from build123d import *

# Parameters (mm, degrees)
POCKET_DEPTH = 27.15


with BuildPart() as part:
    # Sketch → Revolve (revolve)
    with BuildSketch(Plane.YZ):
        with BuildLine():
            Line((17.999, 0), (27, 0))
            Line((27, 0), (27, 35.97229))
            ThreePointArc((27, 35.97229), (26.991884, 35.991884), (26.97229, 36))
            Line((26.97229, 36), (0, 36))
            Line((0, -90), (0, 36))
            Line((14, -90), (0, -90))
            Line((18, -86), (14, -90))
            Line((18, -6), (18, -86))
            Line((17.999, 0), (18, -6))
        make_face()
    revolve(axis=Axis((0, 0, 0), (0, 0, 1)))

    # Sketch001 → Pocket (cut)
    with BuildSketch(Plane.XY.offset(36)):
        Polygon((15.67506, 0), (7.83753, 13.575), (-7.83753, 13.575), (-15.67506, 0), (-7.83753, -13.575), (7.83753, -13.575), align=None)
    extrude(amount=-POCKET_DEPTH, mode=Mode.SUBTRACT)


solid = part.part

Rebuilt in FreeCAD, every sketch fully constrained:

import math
import FreeCAD as App
import Part
import Sketcher
Q = App.Units.Quantity


def add_polygon(sketch, points):
    """Adds a closed chain of lines whose ends are joined by coincident constraints."""
    first, n = sketch.GeometryCount, len(points)
    for a, b in zip(points, points[1:] + points[:1]):
        sketch.addGeometry(Part.LineSegment(App.Vector(*a, 0), App.Vector(*b, 0)), False)
    for i in range(n):
        sketch.addConstraint(Sketcher.Constraint("Coincident", first + i, 2, first + (i + 1) % n, 1))

doc = App.newDocument("Part")
body = doc.addObject("PartDesign::Body", "Body")

sketch1 = body.newObject("Sketcher::SketchObject", "Sketch")
sketch1.AttachmentSupport = (doc.getObject("YZ_Plane"), [""])
sketch1.MapMode = "FlatFace"
sketch1.addGeometry(Part.LineSegment(App.Vector(17.999, 0, 0), App.Vector(27, 0, 0)), False)
sketch1.addGeometry(Part.LineSegment(App.Vector(27, 0, 0), App.Vector(27, 35.97229, 0)), False)
sketch1.addGeometry(Part.ArcOfCircle(Part.Circle(App.Vector(26.97229, 35.97229, 0), App.Vector(0, 0, 1), 0.02771), math.radians(-0.000502), math.radians(90.000502)), False)
sketch1.addGeometry(Part.LineSegment(App.Vector(26.97229, 36, 0), App.Vector(0, 36, 0)), False)
sketch1.addGeometry(Part.LineSegment(App.Vector(0, 36, 0), App.Vector(0, -90, 0)), False)
sketch1.addGeometry(Part.LineSegment(App.Vector(0, -90, 0), App.Vector(14, -90, 0)), False)
sketch1.addGeometry(Part.LineSegment(App.Vector(14, -90, 0), App.Vector(18, -86, 0)), False)
sketch1.addGeometry(Part.LineSegment(App.Vector(18, -86, 0), App.Vector(18, -6, 0)), False)
sketch1.addGeometry(Part.LineSegment(App.Vector(18, -6, 0), App.Vector(17.999, 0, 0)), False)
sketch1.addConstraint(Sketcher.Constraint("Coincident", 0, 2, 1, 1))
sketch1.addConstraint(Sketcher.Constraint("Coincident", 1, 2, 2, 1))
sketch1.addConstraint(Sketcher.Constraint("Coincident", 2, 2, 3, 1))
sketch1.addConstraint(Sketcher.Constraint("Coincident", 3, 2, 4, 1))
sketch1.addConstraint(Sketcher.Constraint("Coincident", 4, 2, 5, 1))
sketch1.addConstraint(Sketcher.Constraint("Coincident", 5, 2, 6, 1))
sketch1.addConstraint(Sketcher.Constraint("Coincident", 6, 2, 7, 1))
sketch1.addConstraint(Sketcher.Constraint("Coincident", 7, 2, 8, 1))
sketch1.addConstraint(Sketcher.Constraint("Coincident", 8, 2, 0, 1))
sketch1.addConstraint(Sketcher.Constraint("Horizontal", 0))
sketch1.addConstraint(Sketcher.Constraint("Vertical", 1))
sketch1.addConstraint(Sketcher.Constraint("Horizontal", 3))
sketch1.addConstraint(Sketcher.Constraint("Vertical", 4))
sketch1.addConstraint(Sketcher.Constraint("Horizontal", 5))
sketch1.addConstraint(Sketcher.Constraint("Vertical", 7))
sketch1.addConstraint(Sketcher.Constraint("PointOnObject", 0, 2, -1))
sketch1.addConstraint(Sketcher.Constraint("PointOnObject", 3, 2, -2))
sketch1.addConstraint(Sketcher.Constraint("Horizontal", 2, 3, 1, 2))
sketch1.addConstraint(Sketcher.Constraint("DistanceX", 5, 1, 5, 2, Q("14 mm")))
sketch1.addConstraint(Sketcher.Constraint("DistanceY", 4, 2, 4, 1, Q("126 mm")))
sketch1.addConstraint(Sketcher.Constraint("DistanceY", 7, 1, 7, 2, Q("80 mm")))
sketch1.addConstraint(Sketcher.Constraint("Angle", 6, Q("45 deg")))
sketch1.addConstraint(Sketcher.Constraint("Distance", 8, Q("6 mm")))
sketch1.addConstraint(Sketcher.Constraint("DistanceX", -1, 1, 0, 2, Q("27 mm")))
sketch1.addConstraint(Sketcher.Constraint("DistanceY", -1, 1, 2, 2, Q("36 mm")))
sketch1.addConstraint(Sketcher.Constraint("DistanceX", 0, 1, 0, 2, Q("9.001 mm")))
sketch1.addConstraint(Sketcher.Constraint("Radius", 2, Q("0.02771 mm")))
sketch1.addConstraint(Sketcher.Constraint("DistanceX", 3, 2, 3, 1, Q("26.97229 mm")))
revolution = body.newObject("PartDesign::Revolution", "Revolution")
revolution.Profile = sketch1
revolution.ReferenceAxis = (sketch1, ["V_Axis"])
revolution.Angle = 360

sketch2 = body.newObject("Sketcher::SketchObject", "Sketch001")
sketch2.AttachmentSupport = (doc.getObject("XY_Plane"), [""])
sketch2.MapMode = "FlatFace"
sketch2.AttachmentOffset = App.Placement(App.Vector(0, 0, 36), App.Rotation())
add_polygon(sketch2, [(15.67506, 0), (7.83753, 13.575), (-7.83753, 13.575), (-15.67506, 0), (-7.83753, -13.575), (7.83753, -13.575)])
sketch2.addConstraint(Sketcher.Constraint("Horizontal", 1))
sketch2.addConstraint(Sketcher.Constraint("Horizontal", 4))
sketch2.addConstraint(Sketcher.Constraint("Symmetric", 0, 2, 3, 2, -1, 1))
sketch2.addConstraint(Sketcher.Constraint("Symmetric", 2, 2, 5, 2, -1, 1))
sketch2.addConstraint(Sketcher.Constraint("PointOnObject", 2, 2, -1))
sketch2.addConstraint(Sketcher.Constraint("Parallel", 2, 5))
sketch2.addConstraint(Sketcher.Constraint("Vertical", 1, 2, 3, 2))
sketch2.addConstraint(Sketcher.Constraint("Angle", 0, Q("120 deg")))
sketch2.addConstraint(Sketcher.Constraint("DistanceY", 3, 2, 1, 2, Q("27.15 mm")))
sketch2.addConstraint(Sketcher.Constraint("DistanceX", 1, 2, 1, 1, Q("15.67506 mm")))
pocket1 = body.newObject("PartDesign::Pocket", "Pocket")
pocket1.Profile = sketch2
pocket1.Length = 27.15

doc.recompute()
